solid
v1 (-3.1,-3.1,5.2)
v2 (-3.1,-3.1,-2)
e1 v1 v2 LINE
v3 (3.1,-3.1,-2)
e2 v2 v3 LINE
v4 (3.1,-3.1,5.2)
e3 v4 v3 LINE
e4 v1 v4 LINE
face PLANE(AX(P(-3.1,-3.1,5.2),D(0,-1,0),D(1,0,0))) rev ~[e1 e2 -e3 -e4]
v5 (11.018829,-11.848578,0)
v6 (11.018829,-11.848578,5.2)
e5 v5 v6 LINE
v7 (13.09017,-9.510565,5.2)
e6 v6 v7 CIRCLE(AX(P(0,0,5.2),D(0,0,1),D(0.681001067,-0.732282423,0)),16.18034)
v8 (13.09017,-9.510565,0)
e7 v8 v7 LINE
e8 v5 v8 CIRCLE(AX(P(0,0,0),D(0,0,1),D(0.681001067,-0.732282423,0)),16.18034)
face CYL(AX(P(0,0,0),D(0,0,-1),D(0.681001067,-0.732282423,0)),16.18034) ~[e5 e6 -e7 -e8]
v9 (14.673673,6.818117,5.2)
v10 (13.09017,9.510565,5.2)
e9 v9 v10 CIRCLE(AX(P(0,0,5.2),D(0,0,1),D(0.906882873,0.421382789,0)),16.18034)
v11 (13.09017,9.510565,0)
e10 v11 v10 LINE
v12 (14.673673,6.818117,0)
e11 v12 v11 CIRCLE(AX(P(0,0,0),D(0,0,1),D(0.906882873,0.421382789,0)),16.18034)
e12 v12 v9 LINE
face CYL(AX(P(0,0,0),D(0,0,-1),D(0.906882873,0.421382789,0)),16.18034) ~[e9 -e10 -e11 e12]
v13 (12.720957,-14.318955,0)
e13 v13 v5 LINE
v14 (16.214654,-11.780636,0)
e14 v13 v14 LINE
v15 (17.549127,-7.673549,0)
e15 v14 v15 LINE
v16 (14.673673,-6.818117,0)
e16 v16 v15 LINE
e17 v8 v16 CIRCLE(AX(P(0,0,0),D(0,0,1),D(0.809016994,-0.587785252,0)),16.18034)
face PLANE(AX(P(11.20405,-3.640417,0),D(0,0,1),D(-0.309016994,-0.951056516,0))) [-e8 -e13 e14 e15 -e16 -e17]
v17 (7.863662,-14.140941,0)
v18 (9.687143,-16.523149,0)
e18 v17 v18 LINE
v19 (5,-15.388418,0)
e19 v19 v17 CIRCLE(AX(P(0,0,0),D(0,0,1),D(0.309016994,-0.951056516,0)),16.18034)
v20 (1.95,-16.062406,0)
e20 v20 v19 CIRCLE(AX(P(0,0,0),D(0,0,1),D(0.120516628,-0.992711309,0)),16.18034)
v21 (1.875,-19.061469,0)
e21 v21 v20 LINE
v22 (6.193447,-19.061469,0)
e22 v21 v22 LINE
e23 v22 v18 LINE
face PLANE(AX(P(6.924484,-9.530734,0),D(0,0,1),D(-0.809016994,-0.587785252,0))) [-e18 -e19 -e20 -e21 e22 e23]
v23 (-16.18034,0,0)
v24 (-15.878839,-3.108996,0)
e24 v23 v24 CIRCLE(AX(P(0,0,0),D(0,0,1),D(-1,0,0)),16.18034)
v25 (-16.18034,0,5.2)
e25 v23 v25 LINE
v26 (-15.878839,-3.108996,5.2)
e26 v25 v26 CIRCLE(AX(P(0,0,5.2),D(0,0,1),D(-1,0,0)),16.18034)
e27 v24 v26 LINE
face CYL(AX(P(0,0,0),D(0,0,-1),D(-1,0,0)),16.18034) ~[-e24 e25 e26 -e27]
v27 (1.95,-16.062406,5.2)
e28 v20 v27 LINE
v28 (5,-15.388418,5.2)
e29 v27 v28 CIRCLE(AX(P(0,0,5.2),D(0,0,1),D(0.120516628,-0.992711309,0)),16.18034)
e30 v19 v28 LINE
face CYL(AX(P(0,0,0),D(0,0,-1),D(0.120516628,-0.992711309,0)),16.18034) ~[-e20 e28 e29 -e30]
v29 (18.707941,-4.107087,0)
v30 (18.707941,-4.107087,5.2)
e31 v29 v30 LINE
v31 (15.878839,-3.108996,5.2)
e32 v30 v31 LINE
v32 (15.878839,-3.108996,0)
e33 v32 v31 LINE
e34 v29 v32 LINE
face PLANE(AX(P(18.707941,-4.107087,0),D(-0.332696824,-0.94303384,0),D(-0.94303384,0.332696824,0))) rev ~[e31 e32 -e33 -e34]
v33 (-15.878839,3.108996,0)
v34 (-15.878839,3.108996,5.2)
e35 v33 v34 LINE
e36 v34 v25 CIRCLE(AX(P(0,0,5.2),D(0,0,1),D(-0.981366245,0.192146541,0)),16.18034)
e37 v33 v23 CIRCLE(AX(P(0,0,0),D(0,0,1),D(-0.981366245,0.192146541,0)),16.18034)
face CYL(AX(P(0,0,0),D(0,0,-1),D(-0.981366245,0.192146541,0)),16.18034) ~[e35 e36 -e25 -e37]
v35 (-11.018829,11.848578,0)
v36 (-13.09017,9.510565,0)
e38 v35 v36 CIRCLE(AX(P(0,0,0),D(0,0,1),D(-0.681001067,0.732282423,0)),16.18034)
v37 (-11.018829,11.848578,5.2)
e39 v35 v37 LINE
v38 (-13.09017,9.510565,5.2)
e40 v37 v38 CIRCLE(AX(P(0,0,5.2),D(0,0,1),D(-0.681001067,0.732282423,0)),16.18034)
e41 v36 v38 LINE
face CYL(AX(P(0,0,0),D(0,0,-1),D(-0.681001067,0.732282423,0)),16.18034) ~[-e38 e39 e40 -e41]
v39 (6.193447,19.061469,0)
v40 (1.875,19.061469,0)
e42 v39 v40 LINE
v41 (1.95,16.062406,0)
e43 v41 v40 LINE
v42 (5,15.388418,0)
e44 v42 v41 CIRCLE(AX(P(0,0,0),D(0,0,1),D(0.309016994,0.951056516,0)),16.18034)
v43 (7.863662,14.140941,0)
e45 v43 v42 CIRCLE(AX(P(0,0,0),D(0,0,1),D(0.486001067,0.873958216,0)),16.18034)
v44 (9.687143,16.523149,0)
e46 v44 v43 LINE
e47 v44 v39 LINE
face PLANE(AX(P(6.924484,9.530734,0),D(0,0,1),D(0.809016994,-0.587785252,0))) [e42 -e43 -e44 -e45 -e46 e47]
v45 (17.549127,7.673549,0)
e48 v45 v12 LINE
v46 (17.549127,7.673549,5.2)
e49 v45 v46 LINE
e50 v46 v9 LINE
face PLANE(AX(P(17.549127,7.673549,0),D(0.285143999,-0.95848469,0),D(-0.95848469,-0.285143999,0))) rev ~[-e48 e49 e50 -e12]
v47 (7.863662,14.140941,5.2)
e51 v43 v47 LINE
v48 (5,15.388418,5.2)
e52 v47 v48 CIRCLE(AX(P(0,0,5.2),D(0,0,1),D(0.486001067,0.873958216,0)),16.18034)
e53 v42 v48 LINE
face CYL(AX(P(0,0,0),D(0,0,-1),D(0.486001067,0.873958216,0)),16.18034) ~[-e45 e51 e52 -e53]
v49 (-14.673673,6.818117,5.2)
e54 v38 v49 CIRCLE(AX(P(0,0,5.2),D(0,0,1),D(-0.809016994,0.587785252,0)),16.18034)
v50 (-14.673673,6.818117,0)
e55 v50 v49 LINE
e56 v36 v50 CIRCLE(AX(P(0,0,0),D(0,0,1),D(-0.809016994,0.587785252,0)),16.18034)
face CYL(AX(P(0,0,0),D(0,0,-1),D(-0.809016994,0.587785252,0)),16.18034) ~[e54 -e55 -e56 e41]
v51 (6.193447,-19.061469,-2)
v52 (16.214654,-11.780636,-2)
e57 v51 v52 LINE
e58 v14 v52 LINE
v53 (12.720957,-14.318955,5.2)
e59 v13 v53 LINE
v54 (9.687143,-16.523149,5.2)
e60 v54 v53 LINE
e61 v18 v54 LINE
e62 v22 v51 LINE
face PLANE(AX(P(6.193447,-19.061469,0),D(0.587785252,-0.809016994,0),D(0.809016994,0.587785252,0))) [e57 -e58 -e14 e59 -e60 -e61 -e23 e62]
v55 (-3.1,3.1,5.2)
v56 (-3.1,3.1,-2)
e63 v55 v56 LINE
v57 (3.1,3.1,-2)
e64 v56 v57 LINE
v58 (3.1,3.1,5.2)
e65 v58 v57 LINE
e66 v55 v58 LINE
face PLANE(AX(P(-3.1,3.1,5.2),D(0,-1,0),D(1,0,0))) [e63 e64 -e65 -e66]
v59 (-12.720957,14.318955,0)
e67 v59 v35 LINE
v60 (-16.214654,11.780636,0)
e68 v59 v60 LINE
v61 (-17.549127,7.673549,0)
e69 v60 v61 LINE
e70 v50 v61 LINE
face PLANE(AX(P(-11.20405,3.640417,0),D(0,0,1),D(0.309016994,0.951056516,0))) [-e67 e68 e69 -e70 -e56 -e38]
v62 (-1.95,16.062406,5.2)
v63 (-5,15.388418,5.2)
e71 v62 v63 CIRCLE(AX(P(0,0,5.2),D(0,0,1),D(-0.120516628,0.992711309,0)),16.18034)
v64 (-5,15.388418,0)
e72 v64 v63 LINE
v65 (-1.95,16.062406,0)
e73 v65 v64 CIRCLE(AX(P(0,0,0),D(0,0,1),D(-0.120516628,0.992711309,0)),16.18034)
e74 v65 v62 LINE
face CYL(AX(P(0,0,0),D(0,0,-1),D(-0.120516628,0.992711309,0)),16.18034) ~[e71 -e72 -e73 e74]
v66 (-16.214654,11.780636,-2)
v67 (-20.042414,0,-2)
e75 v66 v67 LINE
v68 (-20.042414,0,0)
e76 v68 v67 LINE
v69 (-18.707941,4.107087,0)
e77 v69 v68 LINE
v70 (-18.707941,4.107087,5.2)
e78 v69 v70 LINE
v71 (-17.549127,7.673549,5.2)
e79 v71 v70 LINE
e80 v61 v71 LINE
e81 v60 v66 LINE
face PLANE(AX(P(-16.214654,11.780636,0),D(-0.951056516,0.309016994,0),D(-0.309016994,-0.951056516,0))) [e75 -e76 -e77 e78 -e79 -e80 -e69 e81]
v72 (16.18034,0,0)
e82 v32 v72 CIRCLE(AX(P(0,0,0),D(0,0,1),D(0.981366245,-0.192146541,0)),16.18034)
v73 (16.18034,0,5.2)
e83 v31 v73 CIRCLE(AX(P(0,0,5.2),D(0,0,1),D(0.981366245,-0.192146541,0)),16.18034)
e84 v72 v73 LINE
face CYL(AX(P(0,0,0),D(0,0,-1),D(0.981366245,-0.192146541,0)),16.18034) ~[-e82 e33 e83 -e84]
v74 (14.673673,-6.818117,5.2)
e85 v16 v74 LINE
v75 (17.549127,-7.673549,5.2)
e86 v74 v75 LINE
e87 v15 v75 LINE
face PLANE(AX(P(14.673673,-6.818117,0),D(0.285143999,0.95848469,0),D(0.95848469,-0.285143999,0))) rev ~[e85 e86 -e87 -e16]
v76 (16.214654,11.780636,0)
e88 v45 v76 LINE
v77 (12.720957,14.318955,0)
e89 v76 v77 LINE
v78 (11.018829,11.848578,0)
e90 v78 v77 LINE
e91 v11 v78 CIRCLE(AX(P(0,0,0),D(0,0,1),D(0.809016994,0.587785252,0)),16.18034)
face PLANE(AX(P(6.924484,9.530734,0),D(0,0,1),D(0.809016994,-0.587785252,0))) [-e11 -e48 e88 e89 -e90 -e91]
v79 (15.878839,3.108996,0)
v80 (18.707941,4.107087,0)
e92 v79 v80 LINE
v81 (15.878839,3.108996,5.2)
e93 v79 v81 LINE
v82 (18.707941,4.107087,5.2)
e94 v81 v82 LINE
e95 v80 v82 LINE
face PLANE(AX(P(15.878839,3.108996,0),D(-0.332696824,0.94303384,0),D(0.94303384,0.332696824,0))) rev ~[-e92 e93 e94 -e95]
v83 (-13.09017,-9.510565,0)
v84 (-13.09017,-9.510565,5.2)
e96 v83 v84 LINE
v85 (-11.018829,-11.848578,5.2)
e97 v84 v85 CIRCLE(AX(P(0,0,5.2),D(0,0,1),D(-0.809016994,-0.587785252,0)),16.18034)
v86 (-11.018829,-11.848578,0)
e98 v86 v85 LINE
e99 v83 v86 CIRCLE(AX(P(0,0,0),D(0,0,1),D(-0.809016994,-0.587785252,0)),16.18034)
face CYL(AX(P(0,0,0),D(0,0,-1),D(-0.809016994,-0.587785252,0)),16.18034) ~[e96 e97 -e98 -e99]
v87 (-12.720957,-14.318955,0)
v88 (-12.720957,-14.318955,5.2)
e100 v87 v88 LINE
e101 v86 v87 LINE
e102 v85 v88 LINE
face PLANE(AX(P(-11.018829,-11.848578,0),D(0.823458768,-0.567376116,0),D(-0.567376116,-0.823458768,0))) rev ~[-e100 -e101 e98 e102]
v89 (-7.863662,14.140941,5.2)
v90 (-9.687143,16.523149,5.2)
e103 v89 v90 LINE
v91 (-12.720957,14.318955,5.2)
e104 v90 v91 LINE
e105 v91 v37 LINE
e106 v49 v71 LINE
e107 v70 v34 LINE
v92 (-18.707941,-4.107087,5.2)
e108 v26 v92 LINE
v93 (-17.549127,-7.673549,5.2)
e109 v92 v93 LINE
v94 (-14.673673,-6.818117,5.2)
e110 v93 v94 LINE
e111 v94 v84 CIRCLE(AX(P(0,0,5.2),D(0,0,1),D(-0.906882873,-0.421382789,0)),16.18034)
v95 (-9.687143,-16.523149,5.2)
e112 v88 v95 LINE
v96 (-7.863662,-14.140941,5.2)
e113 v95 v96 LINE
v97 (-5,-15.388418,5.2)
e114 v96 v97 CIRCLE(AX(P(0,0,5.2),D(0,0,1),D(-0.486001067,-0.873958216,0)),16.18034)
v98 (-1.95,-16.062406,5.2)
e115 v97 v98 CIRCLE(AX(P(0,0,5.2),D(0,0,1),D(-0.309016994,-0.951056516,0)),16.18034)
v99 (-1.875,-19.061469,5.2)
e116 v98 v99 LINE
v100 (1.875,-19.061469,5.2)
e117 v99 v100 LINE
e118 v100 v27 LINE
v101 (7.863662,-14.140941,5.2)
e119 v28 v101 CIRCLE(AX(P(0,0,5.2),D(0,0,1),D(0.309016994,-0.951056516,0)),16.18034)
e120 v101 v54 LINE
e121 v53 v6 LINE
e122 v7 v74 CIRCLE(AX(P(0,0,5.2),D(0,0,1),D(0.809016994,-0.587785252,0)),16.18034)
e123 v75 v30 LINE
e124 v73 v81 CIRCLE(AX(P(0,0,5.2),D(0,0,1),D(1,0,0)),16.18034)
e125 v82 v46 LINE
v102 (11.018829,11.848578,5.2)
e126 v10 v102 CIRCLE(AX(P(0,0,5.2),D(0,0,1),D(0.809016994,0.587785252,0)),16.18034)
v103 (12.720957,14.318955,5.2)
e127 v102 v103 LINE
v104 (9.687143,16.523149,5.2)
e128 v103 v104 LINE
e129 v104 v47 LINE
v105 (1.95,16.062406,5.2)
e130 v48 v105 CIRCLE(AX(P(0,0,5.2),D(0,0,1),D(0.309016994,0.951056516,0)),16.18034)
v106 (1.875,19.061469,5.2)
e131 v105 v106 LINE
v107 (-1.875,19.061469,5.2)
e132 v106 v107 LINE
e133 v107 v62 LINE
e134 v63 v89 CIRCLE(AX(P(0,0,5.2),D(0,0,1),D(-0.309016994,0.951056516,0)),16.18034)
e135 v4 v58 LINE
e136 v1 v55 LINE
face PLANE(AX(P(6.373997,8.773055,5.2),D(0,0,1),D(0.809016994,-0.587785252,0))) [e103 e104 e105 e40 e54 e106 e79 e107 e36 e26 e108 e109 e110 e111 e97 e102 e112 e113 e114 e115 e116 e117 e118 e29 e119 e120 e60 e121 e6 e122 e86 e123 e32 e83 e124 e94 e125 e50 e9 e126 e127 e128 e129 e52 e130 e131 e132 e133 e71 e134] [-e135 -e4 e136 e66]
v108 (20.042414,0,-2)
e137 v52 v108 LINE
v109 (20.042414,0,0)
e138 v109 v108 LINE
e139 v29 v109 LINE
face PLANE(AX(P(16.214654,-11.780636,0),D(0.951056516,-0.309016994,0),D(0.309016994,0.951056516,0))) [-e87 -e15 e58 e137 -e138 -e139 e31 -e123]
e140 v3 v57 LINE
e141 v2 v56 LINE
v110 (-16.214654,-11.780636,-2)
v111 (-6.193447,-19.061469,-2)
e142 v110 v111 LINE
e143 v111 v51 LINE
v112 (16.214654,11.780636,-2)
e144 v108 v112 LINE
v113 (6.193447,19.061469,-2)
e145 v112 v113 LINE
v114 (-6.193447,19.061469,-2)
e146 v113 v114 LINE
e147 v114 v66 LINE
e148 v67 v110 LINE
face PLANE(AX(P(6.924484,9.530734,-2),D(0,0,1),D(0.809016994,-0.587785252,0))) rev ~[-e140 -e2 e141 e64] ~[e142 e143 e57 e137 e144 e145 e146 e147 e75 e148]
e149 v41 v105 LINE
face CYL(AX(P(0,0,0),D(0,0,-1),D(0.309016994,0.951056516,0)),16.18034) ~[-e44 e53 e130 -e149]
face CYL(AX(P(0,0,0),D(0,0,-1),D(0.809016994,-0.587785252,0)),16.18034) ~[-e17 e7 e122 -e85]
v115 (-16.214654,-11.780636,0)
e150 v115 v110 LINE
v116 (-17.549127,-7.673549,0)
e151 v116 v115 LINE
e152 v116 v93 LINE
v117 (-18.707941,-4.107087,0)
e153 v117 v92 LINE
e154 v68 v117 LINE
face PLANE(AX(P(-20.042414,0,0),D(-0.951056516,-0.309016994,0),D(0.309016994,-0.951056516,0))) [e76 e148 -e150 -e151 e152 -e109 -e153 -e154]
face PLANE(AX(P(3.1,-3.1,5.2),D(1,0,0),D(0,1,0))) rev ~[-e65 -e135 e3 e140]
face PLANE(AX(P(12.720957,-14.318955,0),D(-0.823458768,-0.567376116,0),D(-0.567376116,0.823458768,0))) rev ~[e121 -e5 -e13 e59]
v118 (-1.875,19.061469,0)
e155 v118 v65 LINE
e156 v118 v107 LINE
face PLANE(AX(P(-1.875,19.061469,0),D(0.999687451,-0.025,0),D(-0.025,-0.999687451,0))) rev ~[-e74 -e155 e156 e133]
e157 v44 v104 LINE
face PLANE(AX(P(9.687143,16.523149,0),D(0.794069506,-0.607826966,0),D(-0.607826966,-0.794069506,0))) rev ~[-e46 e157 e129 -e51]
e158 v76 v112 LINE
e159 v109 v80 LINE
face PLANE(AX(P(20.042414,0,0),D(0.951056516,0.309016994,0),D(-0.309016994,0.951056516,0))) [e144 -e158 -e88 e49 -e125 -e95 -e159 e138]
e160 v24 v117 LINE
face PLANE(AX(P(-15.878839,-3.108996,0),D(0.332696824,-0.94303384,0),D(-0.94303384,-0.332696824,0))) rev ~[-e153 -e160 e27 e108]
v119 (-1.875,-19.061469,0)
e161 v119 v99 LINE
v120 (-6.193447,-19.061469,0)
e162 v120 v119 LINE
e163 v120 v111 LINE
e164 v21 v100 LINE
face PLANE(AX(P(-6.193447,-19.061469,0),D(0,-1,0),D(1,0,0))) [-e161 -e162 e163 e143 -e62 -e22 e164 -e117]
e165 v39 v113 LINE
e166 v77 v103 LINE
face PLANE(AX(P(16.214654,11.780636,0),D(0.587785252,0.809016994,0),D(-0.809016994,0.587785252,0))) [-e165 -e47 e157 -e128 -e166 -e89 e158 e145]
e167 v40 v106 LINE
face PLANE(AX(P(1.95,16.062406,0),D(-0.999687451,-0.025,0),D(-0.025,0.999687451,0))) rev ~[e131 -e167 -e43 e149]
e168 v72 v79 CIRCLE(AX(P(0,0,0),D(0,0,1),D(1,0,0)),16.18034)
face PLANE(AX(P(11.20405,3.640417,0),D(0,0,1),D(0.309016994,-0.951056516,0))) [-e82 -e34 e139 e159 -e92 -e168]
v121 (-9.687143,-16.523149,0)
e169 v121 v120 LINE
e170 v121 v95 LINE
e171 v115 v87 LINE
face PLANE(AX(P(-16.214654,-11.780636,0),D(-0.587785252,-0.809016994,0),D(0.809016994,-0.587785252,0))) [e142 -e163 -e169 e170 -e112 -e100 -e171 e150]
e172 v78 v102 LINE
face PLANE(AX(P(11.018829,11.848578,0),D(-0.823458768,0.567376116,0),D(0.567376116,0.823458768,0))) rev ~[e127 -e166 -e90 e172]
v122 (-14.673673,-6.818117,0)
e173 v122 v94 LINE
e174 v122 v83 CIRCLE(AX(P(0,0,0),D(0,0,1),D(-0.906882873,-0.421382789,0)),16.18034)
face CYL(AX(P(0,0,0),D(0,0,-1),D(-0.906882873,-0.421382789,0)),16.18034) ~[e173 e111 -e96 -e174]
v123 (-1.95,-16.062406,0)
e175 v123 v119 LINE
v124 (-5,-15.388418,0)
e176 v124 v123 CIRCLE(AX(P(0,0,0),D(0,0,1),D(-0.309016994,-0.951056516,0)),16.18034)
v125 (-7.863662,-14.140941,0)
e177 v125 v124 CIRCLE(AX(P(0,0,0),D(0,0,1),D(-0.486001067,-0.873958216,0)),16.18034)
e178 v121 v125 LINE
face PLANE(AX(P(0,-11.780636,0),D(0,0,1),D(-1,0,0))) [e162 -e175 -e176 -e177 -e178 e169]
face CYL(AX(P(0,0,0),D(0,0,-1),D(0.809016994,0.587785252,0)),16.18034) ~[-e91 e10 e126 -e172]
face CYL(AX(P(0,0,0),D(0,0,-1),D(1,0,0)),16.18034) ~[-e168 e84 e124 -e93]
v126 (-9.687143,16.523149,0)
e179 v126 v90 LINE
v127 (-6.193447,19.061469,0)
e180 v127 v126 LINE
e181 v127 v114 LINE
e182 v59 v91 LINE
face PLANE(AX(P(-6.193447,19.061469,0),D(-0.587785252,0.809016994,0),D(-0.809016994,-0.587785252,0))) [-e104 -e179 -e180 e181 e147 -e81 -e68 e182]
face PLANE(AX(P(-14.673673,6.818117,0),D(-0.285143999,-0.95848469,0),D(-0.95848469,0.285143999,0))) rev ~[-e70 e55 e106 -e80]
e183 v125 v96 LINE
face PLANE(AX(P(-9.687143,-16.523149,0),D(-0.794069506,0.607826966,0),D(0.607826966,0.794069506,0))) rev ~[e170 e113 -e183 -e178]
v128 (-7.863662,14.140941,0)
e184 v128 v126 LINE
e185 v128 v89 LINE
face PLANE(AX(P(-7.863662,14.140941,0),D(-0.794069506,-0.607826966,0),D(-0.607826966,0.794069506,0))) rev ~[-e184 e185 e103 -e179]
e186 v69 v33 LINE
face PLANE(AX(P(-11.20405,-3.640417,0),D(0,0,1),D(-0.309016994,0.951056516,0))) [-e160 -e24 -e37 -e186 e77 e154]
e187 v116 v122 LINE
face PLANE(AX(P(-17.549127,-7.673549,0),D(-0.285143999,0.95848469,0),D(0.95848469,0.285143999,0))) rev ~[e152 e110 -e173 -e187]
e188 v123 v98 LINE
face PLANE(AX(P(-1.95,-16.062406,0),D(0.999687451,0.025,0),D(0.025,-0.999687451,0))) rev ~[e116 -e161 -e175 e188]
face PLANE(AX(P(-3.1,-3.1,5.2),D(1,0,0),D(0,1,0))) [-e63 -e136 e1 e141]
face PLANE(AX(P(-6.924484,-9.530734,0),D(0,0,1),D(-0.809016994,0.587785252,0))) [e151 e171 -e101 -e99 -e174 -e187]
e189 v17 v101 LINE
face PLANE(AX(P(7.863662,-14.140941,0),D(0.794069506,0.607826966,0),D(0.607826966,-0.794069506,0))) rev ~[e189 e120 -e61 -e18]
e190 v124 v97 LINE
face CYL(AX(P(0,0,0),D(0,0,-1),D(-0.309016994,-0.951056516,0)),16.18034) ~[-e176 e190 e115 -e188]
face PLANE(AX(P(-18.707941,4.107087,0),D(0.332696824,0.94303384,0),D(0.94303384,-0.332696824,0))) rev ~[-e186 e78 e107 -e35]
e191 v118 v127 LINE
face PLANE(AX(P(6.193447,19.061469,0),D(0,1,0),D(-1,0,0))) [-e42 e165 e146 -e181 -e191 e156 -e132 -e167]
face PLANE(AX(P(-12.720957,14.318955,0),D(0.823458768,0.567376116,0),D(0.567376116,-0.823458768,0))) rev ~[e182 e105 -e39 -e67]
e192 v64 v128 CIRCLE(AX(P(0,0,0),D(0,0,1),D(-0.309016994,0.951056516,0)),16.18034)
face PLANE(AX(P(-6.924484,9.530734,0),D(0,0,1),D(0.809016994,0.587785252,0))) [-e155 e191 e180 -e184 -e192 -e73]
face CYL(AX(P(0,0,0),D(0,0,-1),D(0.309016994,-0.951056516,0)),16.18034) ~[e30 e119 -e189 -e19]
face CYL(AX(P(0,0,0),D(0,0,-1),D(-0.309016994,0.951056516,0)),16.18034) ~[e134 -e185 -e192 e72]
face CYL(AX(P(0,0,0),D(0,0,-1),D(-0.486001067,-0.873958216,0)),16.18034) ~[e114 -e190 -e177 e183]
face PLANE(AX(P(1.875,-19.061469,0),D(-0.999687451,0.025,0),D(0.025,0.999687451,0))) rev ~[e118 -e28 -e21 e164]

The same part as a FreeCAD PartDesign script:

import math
import FreeCAD as App
import Part
import Sketcher

V = App.Vector
Q = App.Units.Quantity


def add_polygon(sketch, points):
    """Adds a closed chain of lines whose ends are joined by coincident constraints."""
    first, n = sketch.GeometryCount, len(points)
    for a, b in zip(points, points[1:] + points[:1]):
        sketch.addGeometry(Part.LineSegment(App.Vector(*a, 0), App.Vector(*b, 0)), False)
    for i in range(n):
        sketch.addConstraint(Sketcher.Constraint("Coincident", first + i, 2, first + (i + 1) % n, 1))

doc = App.newDocument("Part")
body = doc.addObject("PartDesign::Body", "Body")

# Sketch on XY plane
sketch1 = body.newObject("Sketcher::SketchObject", "Sketch")
sketch1.AttachmentSupport = (doc.getObject("XY_Plane"), [""])
sketch1.MapMode = "FlatFace"
sketch1.addGeometry(Part.LineSegment(V(-5, 15.388418, 0), V(0, 0, 0)), False)
sketch1.addGeometry(Part.LineSegment(V(0, 0, 0), V(5, 15.388418, 0)), False)
sketch1.addGeometry(Part.ArcOfCircle(Part.Circle(V(0, 0, 0), V(0, 0, 1), 16.18034), math.radians(72), math.radians(83.07808)), False)
sketch1.addGeometry(Part.LineSegment(V(1.95, 16.062406, 0), V(1.875, 19.061469, 0)), False)
sketch1.addGeometry(Part.LineSegment(V(1.875, 19.061469, 0), V(-1.875, 19.061469, 0)), False)
sketch1.addGeometry(Part.LineSegment(V(-1.875, 19.061469, 0), V(-1.95, 16.062406, 0)), False)
sketch1.addGeometry(Part.ArcOfCircle(Part.Circle(V(0, 0, 0), V(0, 0, 1), 16.18034), math.radians(96.92192), math.radians(108)), False)
sketch1.addConstraint(Sketcher.Constraint("Coincident", 0, 2, 1, 1))
sketch1.addConstraint(Sketcher.Constraint("Coincident", 1, 2, 2, 1))
sketch1.addConstraint(Sketcher.Constraint("Coincident", 2, 2, 3, 1))
sketch1.addConstraint(Sketcher.Constraint("Coincident", 3, 2, 4, 1))
sketch1.addConstraint(Sketcher.Constraint("Coincident", 4, 2, 5, 1))
sketch1.addConstraint(Sketcher.Constraint("Coincident", 5, 2, 6, 1))
sketch1.addConstraint(Sketcher.Constraint("Coincident", 6, 2, 0, 1))
sketch1.addConstraint(Sketcher.Constraint("Horizontal", 4))
sketch1.addConstraint(Sketcher.Constraint("Coincident", 2, 3, -1, 1))
sketch1.addConstraint(Sketcher.Constraint("Coincident", 6, 3, -1, 1))
sketch1.addConstraint(Sketcher.Constraint("Coincident", 0, 2, -1, 1))
sketch1.addConstraint(Sketcher.Constraint("Equal", 2, 6))
sketch1.addConstraint(Sketcher.Constraint("Horizontal", 2, 2, 5, 2))
sketch1.addConstraint(Sketcher.Constraint("Horizontal", 1, 2, 6, 2))
sketch1.addConstraint(Sketcher.Constraint("Equal", 3, 5))
sketch1.addConstraint(Sketcher.Constraint("Angle", 0, Q("-72 deg")))
sketch1.addConstraint(Sketcher.Constraint("Distance", 3, Q("3 mm")))
sketch1.addConstraint(Sketcher.Constraint("DistanceX", -1, 1, 1, 2, Q("5 mm")))
sketch1.addConstraint(Sketcher.Constraint("DistanceX", 4, 2, 4, 1, Q("3.75 mm")))
sketch1.addConstraint(Sketcher.Constraint("DistanceX", 5, 2, 2, 2, Q("3.9 mm")))
pad1 = body.newObject("PartDesign::Pad", "Pad")
pad1.Profile = sketch1
pad1.Length = 5.2

# Sketch on XY plane
sketch2 = body.newObject("Sketcher::SketchObject", "Sketch001")
sketch2.AttachmentSupport = (doc.getObject("XY_Plane"), [""])
sketch2.MapMode = "FlatFace"
add_polygon(sketch2, [(6.193447, 19.061469), (0, 0), (-6.193447, 19.061469)])  # lines 0-2
sketch2.addConstraint(Sketcher.Constraint("Horizontal", 2))
sketch2.addConstraint(Sketcher.Constraint("Coincident", 0, 2, -1, 1))
sketch2.addConstraint(Sketcher.Constraint("Equal", 0, 1))
sketch2.addConstraint(Sketcher.Constraint("Angle", 0, Q("-108 deg")))
sketch2.addConstraint(Sketcher.Constraint("DistanceX", 2, 1, 2, 2, Q("12.386893 mm")))
pad2 = body.newObject("PartDesign::Pad", "Pad001")
pad2.Profile = sketch2
pad2.Length = 2
pad2.Reversed = True
doc.recompute()

polarpattern = body.newObject("PartDesign::PolarPattern", "PolarPattern")
polarpattern.Originals = [pad1, pad2]
polarpattern.Axis = (doc.getObject("Z_Axis"), [""])
polarpattern.Angle = 360
polarpattern.Occurrences = 10
body.Tip = polarpattern

# Sketch on XY plane
sketch3 = body.newObject("Sketcher::SketchObject", "Sketch002")
sketch3.AttachmentSupport = (doc.getObject("XY_Plane"), [""])
sketch3.MapMode = "FlatFace"
sketch3.AttachmentOffset = App.Placement(V(0, 0, 5.2), App.Rotation())
add_polygon(sketch3, [(-3.1, 3.1), (-3.1, -3.1), (3.1, -3.1), (3.1, 3.1)])  # lines 0-3
sketch3.addConstraint(Sketcher.Constraint("Vertical", 0))
sketch3.addConstraint(Sketcher.Constraint("Horizontal", 1))
sketch3.addConstraint(Sketcher.Constraint("Vertical", 2))
sketch3.addConstraint(Sketcher.Constraint("Horizontal", 3))
sketch3.addConstraint(Sketcher.Constraint("Symmetric", 0, 2, 2, 2, -1, 1))
sketch3.addConstraint(Sketcher.Constraint("Equal", 3, 0))
sketch3.addConstraint(Sketcher.Constraint("DistanceX", 1, 1, 1, 2, Q("6.2 mm")))
pocket1 = body.newObject("PartDesign::Pocket", "Pocket")
pocket1.Profile = sketch3
pocket1.Type = "ThroughAll"

doc.recompute()
